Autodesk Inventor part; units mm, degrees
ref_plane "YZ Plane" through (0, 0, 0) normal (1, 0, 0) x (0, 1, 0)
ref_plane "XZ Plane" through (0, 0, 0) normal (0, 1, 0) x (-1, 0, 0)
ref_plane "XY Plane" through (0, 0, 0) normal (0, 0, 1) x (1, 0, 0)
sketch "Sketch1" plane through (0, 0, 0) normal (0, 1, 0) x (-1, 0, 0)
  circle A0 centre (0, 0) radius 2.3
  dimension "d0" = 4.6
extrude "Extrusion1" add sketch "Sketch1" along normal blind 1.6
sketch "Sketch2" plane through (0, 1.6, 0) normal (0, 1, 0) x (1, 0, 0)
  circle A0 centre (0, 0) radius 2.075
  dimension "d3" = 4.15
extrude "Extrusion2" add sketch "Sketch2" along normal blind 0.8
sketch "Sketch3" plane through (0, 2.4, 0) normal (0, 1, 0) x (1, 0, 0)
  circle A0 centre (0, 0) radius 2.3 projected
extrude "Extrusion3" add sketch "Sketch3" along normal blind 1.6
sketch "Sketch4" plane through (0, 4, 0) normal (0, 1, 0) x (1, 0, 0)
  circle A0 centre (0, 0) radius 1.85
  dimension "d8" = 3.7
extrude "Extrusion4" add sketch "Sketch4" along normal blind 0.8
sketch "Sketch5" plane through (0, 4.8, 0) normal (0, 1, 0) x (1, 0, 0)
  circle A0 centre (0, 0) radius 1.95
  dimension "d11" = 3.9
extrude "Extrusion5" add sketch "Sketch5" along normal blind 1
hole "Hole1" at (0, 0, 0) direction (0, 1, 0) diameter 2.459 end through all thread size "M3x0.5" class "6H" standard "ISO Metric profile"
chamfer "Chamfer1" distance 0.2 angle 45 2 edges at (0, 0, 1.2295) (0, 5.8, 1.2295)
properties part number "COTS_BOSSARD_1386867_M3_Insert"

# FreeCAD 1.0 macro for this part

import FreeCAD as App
import Part
import Sketcher
from FreeCAD import Vector


def edges_at(feature, points):
    """Names of the edges that pass closest to the given points."""
    edges = feature.Shape.Edges
    near = lambda p: min(range(len(edges)), key=lambda i: edges[i].distToShape(Part.Vertex(*p))[0])
    return sorted({f"Edge{near(p) + 1}" for p in points})

doc = App.newDocument("Part")
body = doc.addObject("PartDesign::Body", "Body")

# Sketch on XZ plane
sketch1 = body.newObject("Sketcher::SketchObject", "Sketch")
sketch1.AttachmentSupport = (doc.getObject("XZ_Plane"), [""])
sketch1.MapMode = "FlatFace"
sketch1.addGeometry(Part.Circle(Vector(0, 0, 0), Vector(0, 0, 1), 2.3), False)
sketch1.addConstraint(Sketcher.Constraint("Coincident", 0, 3, -1, 1))
sketch1.addConstraint(Sketcher.Constraint("Diameter", 0, 4.6))
pad1 = body.newObject("PartDesign::Pad", "Pad")
pad1.Profile = sketch1
pad1.Length = 1.6
pad1.Reversed = True

# Sketch on XZ plane
sketch2 = body.newObject("Sketcher::SketchObject", "Sketch001")
sketch2.AttachmentSupport = (doc.getObject("XZ_Plane"), [""])
sketch2.MapMode = "FlatFace"
sketch2.AttachmentOffset = App.Placement(Vector(0, 0, -1.6), App.Rotation())
sketch2.addGeometry(Part.Circle(Vector(0, 0, 0), Vector(0, 0, 1), 2.1), False)
sketch2.addConstraint(Sketcher.Constraint("Coincident", 0, 3, -1, 1))
sketch2.addConstraint(Sketcher.Constraint("Diameter", 0, 4.15))
pad2 = body.newObject("PartDesign::Pad", "Pad001")
pad2.Profile = sketch2
pad2.Length = 0.8
pad2.Reversed = True

# Sketch on XZ plane
sketch3 = body.newObject("Sketcher::SketchObject", "Sketch002")
sketch3.AttachmentSupport = (doc.getObject("XZ_Plane"), [""])
sketch3.MapMode = "FlatFace"
sketch3.AttachmentOffset = App.Placement(Vector(0, 0, -2.4), App.Rotation())
sketch3.addGeometry(Part.Circle(Vector(0, 0, 0), Vector(0, 0, 1), 2.3), False)
sketch3.addConstraint(Sketcher.Constraint("Coincident", 0, 3, -1, 1))
sketch3.addConstraint(Sketcher.Constraint("Diameter", 0, 4.6))
pad3 = body.newObject("PartDesign::Pad", "Pad002")
pad3.Profile = sketch3
pad3.Length = 1.6
pad3.Reversed = True

# Sketch on XZ plane
sketch4 = body.newObject("Sketcher::SketchObject", "Sketch003")
sketch4.AttachmentSupport = (doc.getObject("XZ_Plane"), [""])
sketch4.MapMode = "FlatFace"
sketch4.AttachmentOffset = App.Placement(Vector(0, 0, -4), App.Rotation())
sketch4.addGeometry(Part.Circle(Vector(0, 0, 0), Vector(0, 0, 1), 1.9), False)
sketch4.addConstraint(Sketcher.Constraint("Coincident", 0, 3, -1, 1))
sketch4.addConstraint(Sketcher.Constraint("Diameter", 0, 3.7))
pad4 = body.newObject("PartDesign::Pad", "Pad003")
pad4.Profile = sketch4
pad4.Length = 0.8
pad4.Reversed = True

# Sketch on XZ plane
sketch5 = body.newObject("Sketcher::SketchObject", "Sketch004")
sketch5.AttachmentSupport = (doc.getObject("XZ_Plane"), [""])
sketch5.MapMode = "FlatFace"
sketch5.AttachmentOffset = App.Placement(Vector(0, 0, -4.8), App.Rotation())
sketch5.addGeometry(Part.Circle(Vector(0, 0, 0), Vector(0, 0, 1), 1.9), False)
sketch5.addConstraint(Sketcher.Constraint("Coincident", 0, 3, -1, 1))
sketch5.addConstraint(Sketcher.Constraint("Diameter", 0, 3.9))
pad5 = body.newObject("PartDesign::Pad", "Pad004")
pad5.Profile = sketch5
pad5.Length = 1
pad5.Reversed = True

# Sketch on XZ plane
sketch6 = body.newObject("Sketcher::SketchObject", "Sketch005")
sketch6.AttachmentSupport = (doc.getObject("XZ_Plane"), [""])
sketch6.MapMode = "FlatFace"
sketch6.addGeometry(Part.Circle(Vector(0, 0, 0), Vector(0, 0, 1), 1.2), False)
sketch6.addConstraint(Sketcher.Constraint("Coincident", 0, 3, -1, 1))
sketch6.addConstraint(Sketcher.Constraint("Diameter", 0, 2.459))
doc.recompute()
hole = body.newObject("PartDesign::Hole", "Hole")
hole.Profile = sketch6
hole.ThreadType = "None"
hole.Diameter = 2.459
hole.DepthType = "ThroughAll"
doc.recompute()

chamfer = body.newObject("PartDesign::Chamfer", "Chamfer")
chamfer.Base = (hole, edges_at(hole, [(0, 0, 1.23), (0, 5.8, 1.23)]))
chamfer.Size = 0.2

doc.recompute()
